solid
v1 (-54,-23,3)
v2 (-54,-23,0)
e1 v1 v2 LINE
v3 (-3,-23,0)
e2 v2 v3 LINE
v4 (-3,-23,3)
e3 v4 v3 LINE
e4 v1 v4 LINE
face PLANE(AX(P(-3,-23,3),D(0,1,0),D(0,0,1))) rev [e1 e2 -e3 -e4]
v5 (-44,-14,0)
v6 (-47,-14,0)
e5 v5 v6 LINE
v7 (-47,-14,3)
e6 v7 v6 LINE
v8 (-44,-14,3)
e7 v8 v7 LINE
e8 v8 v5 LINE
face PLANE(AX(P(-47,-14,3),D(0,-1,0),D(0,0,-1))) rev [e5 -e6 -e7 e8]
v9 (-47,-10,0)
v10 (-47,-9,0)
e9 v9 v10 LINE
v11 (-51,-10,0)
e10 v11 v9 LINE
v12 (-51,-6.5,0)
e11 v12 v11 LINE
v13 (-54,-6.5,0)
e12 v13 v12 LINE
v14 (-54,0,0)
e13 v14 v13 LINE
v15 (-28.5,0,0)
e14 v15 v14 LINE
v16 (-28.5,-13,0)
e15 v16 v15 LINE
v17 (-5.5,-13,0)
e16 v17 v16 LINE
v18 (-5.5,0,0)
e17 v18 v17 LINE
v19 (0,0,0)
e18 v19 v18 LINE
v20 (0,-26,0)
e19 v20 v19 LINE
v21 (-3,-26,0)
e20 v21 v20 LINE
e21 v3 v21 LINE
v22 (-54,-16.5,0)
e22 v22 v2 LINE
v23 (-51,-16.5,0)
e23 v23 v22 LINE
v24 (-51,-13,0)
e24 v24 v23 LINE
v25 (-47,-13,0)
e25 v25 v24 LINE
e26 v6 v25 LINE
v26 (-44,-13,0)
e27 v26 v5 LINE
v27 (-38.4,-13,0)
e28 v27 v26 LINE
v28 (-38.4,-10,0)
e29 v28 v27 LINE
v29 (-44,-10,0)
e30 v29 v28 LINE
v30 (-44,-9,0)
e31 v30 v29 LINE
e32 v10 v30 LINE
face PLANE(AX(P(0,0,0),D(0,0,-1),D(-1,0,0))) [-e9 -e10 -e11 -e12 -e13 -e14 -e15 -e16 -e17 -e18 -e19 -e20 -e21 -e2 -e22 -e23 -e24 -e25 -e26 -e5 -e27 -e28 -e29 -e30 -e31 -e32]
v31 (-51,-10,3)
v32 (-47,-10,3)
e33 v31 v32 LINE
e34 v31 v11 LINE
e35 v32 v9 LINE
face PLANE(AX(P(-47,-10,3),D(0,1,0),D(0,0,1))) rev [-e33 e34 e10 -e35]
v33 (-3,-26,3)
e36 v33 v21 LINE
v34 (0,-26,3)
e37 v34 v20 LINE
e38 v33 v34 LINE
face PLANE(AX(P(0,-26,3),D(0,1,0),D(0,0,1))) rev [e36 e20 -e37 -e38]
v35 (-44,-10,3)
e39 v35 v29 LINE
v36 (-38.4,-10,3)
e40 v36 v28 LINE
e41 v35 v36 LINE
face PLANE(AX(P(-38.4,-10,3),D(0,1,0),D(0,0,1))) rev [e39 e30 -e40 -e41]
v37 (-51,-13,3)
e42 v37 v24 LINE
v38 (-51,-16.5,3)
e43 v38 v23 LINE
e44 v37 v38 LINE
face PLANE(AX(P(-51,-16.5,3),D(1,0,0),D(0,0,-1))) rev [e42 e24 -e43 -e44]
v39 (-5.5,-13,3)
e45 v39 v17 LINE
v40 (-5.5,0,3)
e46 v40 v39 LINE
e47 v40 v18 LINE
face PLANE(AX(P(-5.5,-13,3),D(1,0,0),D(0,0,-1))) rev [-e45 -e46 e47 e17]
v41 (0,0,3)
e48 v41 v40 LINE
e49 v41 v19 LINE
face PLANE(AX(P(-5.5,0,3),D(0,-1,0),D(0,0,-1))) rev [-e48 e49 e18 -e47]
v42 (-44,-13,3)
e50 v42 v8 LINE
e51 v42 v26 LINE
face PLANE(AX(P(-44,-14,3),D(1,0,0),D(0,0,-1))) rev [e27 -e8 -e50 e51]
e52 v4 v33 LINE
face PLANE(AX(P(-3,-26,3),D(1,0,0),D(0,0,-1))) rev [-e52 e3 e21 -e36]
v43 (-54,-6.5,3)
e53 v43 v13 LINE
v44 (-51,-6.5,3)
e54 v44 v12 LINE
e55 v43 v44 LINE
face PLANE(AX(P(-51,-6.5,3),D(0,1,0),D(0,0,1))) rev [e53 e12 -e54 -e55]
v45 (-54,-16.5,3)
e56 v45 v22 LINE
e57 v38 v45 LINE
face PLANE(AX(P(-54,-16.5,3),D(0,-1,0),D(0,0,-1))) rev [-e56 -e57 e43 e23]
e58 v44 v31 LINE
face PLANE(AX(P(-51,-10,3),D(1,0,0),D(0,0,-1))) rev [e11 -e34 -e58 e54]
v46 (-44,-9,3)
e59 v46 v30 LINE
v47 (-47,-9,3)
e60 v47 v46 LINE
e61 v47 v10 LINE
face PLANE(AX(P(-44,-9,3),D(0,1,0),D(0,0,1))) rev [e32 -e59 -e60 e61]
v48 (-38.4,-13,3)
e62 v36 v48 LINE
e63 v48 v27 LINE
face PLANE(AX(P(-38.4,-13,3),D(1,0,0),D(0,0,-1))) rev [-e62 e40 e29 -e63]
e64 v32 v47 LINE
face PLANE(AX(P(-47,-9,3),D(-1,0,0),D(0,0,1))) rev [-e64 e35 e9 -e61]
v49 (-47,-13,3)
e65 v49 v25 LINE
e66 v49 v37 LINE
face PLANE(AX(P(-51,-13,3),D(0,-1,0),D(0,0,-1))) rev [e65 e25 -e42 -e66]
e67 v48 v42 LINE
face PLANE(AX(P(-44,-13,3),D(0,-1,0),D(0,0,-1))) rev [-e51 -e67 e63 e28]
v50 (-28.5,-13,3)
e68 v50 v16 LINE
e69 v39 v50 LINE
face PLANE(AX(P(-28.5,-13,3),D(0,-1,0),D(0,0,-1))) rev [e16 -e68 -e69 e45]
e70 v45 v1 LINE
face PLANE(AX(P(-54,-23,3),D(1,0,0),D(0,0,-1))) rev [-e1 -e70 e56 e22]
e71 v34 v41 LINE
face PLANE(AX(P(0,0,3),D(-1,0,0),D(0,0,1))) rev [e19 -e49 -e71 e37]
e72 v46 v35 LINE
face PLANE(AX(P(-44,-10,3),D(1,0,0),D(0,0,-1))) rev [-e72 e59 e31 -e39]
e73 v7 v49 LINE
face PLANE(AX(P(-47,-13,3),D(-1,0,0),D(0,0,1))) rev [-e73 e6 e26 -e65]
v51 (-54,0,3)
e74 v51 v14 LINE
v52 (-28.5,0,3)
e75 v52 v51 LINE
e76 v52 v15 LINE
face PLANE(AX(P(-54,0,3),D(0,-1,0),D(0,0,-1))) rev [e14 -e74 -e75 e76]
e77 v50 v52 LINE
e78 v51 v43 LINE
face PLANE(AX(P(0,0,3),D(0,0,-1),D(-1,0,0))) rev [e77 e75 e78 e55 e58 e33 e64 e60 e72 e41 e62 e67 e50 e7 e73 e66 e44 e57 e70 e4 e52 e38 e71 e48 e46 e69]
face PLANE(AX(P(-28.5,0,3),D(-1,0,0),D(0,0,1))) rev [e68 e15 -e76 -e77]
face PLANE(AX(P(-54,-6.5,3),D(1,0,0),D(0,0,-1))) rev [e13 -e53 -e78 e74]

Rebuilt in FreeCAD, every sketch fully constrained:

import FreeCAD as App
import Part
import Sketcher
Q = App.Units.Quantity

doc = App.newDocument("Part")
body = doc.addObject("PartDesign::Body", "Body")

# Sketch on XY plane
sketch1 = doc.addObject("Sketcher::SketchObject", "Sketch")
body.addObject(sketch1)
sketch1.AttachmentSupport = (doc.XY_Plane, [""])
sketch1.MapMode = "FlatFace"
sketch1.addGeometry(Part.LineSegment(App.Vector(0, -26, 0), App.Vector(0, 0, 0)), False)
sketch1.addGeometry(Part.LineSegment(App.Vector(0, 0, 0), App.Vector(-5.5, 0, 0)), False)
sketch1.addGeometry(Part.LineSegment(App.Vector(-5.5, 0, 0), App.Vector(-5.5, -13, 0)), False)
sketch1.addGeometry(Part.LineSegment(App.Vector(-5.5, -13, 0), App.Vector(-28.5, -13, 0)), False)
sketch1.addGeometry(Part.LineSegment(App.Vector(-28.5, -13, 0), App.Vector(-28.5, 0, 0)), False)
sketch1.addGeometry(Part.LineSegment(App.Vector(-28.5, 0, 0), App.Vector(-54, 0, 0)), False)
sketch1.addGeometry(Part.LineSegment(App.Vector(-54, 0, 0), App.Vector(-54, -6.5, 0)), False)
sketch1.addGeometry(Part.LineSegment(App.Vector(-54, -6.5, 0), App.Vector(-51, -6.5, 0)), False)
sketch1.addGeometry(Part.LineSegment(App.Vector(-51, -6.5, 0), App.Vector(-51, -10, 0)), False)
sketch1.addGeometry(Part.LineSegment(App.Vector(-51, -10, 0), App.Vector(-47, -10, 0)), False)
sketch1.addGeometry(Part.LineSegment(App.Vector(-47, -10, 0), App.Vector(-47, -9, 0)), False)
sketch1.addGeometry(Part.LineSegment(App.Vector(-47, -9, 0), App.Vector(-44, -9, 0)), False)
sketch1.addGeometry(Part.LineSegment(App.Vector(-44, -9, 0), App.Vector(-44, -10, 0)), False)
sketch1.addGeometry(Part.LineSegment(App.Vector(-44, -10, 0), App.Vector(-38.4, -10, 0)), False)
sketch1.addGeometry(Part.LineSegment(App.Vector(-38.4, -10, 0), App.Vector(-38.4, -13, 0)), False)
sketch1.addGeometry(Part.LineSegment(App.Vector(-38.4, -13, 0), App.Vector(-44, -13, 0)), False)
sketch1.addGeometry(Part.LineSegment(App.Vector(-44, -13, 0), App.Vector(-44, -14, 0)), False)
sketch1.addGeometry(Part.LineSegment(App.Vector(-44, -14, 0), App.Vector(-47, -14, 0)), False)
sketch1.addGeometry(Part.LineSegment(App.Vector(-47, -14, 0), App.Vector(-47, -13, 0)), False)
sketch1.addGeometry(Part.LineSegment(App.Vector(-47, -13, 0), App.Vector(-51, -13, 0)), False)
sketch1.addGeometry(Part.LineSegment(App.Vector(-51, -13, 0), App.Vector(-51, -16.5, 0)), False)
sketch1.addGeometry(Part.LineSegment(App.Vector(-51, -16.5, 0), App.Vector(-54, -16.5, 0)), False)
sketch1.addGeometry(Part.LineSegment(App.Vector(-54, -16.5, 0), App.Vector(-54, -23, 0)), False)
sketch1.addGeometry(Part.LineSegment(App.Vector(-54, -23, 0), App.Vector(-3, -23, 0)), False)
sketch1.addGeometry(Part.LineSegment(App.Vector(-3, -23, 0), App.Vector(-3, -26, 0)), False)
sketch1.addGeometry(Part.LineSegment(App.Vector(-3, -26, 0), App.Vector(0, -26, 0)), False)
sketch1.addConstraint(Sketcher.Constraint("Coincident", 0, 2, 1, 1))
sketch1.addConstraint(Sketcher.Constraint("Coincident", 1, 2, 2, 1))
sketch1.addConstraint(Sketcher.Constraint("Coincident", 2, 2, 3, 1))
sketch1.addConstraint(Sketcher.Constraint("Coincident", 3, 2, 4, 1))
sketch1.addConstraint(Sketcher.Constraint("Coincident", 4, 2, 5, 1))
sketch1.addConstraint(Sketcher.Constraint("Coincident", 5, 2, 6, 1))
sketch1.addConstraint(Sketcher.Constraint("Coincident", 6, 2, 7, 1))
sketch1.addConstraint(Sketcher.Constraint("Coincident", 7, 2, 8, 1))
sketch1.addConstraint(Sketcher.Constraint("Coincident", 8, 2, 9, 1))
sketch1.addConstraint(Sketcher.Constraint("Coincident", 9, 2, 10, 1))
sketch1.addConstraint(Sketcher.Constraint("Coincident", 10, 2, 11, 1))
sketch1.addConstraint(Sketcher.Constraint("Coincident", 11, 2, 12, 1))
sketch1.addConstraint(Sketcher.Constraint("Coincident", 12, 2, 13, 1))
sketch1.addConstraint(Sketcher.Constraint("Coincident", 13, 2, 14, 1))
sketch1.addConstraint(Sketcher.Constraint("Coincident", 14, 2, 15, 1))
sketch1.addConstraint(Sketcher.Constraint("Coincident", 15, 2, 16, 1))
sketch1.addConstraint(Sketcher.Constraint("Coincident", 16, 2, 17, 1))
sketch1.addConstraint(Sketcher.Constraint("Coincident", 17, 2, 18, 1))
sketch1.addConstraint(Sketcher.Constraint("Coincident", 18, 2, 19, 1))
sketch1.addConstraint(Sketcher.Constraint("Coincident", 19, 2, 20, 1))
sketch1.addConstraint(Sketcher.Constraint("Coincident", 20, 2, 21, 1))
sketch1.addConstraint(Sketcher.Constraint("Coincident", 21, 2, 22, 1))
sketch1.addConstraint(Sketcher.Constraint("Coincident", 22, 2, 23, 1))
sketch1.addConstraint(Sketcher.Constraint("Coincident", 23, 2, 24, 1))
sketch1.addConstraint(Sketcher.Constraint("Coincident", 24, 2, 25, 1))
sketch1.addConstraint(Sketcher.Constraint("Coincident", 25, 2, 0, 1))
sketch1.addConstraint(Sketcher.Constraint("Vertical", 0))
sketch1.addConstraint(Sketcher.Constraint("Horizontal", 1))
sketch1.addConstraint(Sketcher.Constraint("Vertical", 2))
sketch1.addConstraint(Sketcher.Constraint("Horizontal", 3))
sketch1.addConstraint(Sketcher.Constraint("Vertical", 4))
sketch1.addConstraint(Sketcher.Constraint("Horizontal", 5))
sketch1.addConstraint(Sketcher.Constraint("Vertical", 6))
sketch1.addConstraint(Sketcher.Constraint("Horizontal", 7))
sketch1.addConstraint(Sketcher.Constraint("Vertical", 8))
sketch1.addConstraint(Sketcher.Constraint("Horizontal", 9))
sketch1.addConstraint(Sketcher.Constraint("Vertical", 10))
sketch1.addConstraint(Sketcher.Constraint("Horizontal", 11))
sketch1.addConstraint(Sketcher.Constraint("Vertical", 12))
sketch1.addConstraint(Sketcher.Constraint("Horizontal", 13))
sketch1.addConstraint(Sketcher.Constraint("Vertical", 14))
sketch1.addConstraint(Sketcher.Constraint("Horizontal", 15))
sketch1.addConstraint(Sketcher.Constraint("Vertical", 16))
sketch1.addConstraint(Sketcher.Constraint("Horizontal", 17))
sketch1.addConstraint(Sketcher.Constraint("Vertical", 18))
sketch1.addConstraint(Sketcher.Constraint("Horizontal", 19))
sketch1.addConstraint(Sketcher.Constraint("Vertical", 20))
sketch1.addConstraint(Sketcher.Constraint("Horizontal", 21))
sketch1.addConstraint(Sketcher.Constraint("Vertical", 22))
sketch1.addConstraint(Sketcher.Constraint("Horizontal", 23))
sketch1.addConstraint(Sketcher.Constraint("Vertical", 24))
sketch1.addConstraint(Sketcher.Constraint("Horizontal", 25))
sketch1.addConstraint(Sketcher.Constraint("Coincident", 0, 2, -1, 1))
sketch1.addConstraint(Sketcher.Constraint("PointOnObject", 4, 2, -1))
sketch1.addConstraint(Sketcher.Constraint("Horizontal", 9, 2, 12, 2))
sketch1.addConstraint(Sketcher.Constraint("Horizontal", 3, 2, 14, 2))
sketch1.addConstraint(Sketcher.Constraint("Horizontal", 15, 2, 18, 2))
sketch1.addConstraint(Sketcher.Constraint("Vertical", 12, 2, 15, 2))
sketch1.addConstraint(Sketcher.Constraint("Vertical", 10, 2, 17, 2))
sketch1.addConstraint(Sketcher.Constraint("Vertical", 8, 2, 19, 2))
sketch1.addConstraint(Sketcher.Constraint("Vertical", 6, 2, 21, 2))
sketch1.addConstraint(Sketcher.Constraint("Equal", 7, 11))
sketch1.addConstraint(Sketcher.Constraint("Equal", 21, 25))
sketch1.addConstraint(Sketcher.Constraint("Equal", 25, 14))
sketch1.addConstraint(Sketcher.Constraint("Equal", 12, 16))
sketch1.addConstraint(Sketcher.Constraint("Equal", 8, 20))
sketch1.addConstraint(Sketcher.Constraint("Equal", 6, 22))
sketch1.addConstraint(Sketcher.Constraint("Equal", 14, 24))
sketch1.addConstraint(Sketcher.Constraint("DistanceX", 3, 2, 3, 1, Q("23 mm")))
sketch1.addConstraint(Sketcher.Constraint("DistanceX", 7, 1, 7, 2, Q("3 mm")))
sketch1.addConstraint(Sketcher.Constraint("DistanceX", 9, 1, 9, 2, Q("4 mm")))
sketch1.addConstraint(Sketcher.Constraint("DistanceX", 23, 1, 23, 2, Q("51 mm")))
sketch1.addConstraint(Sketcher.Constraint("DistanceY", 0, 1, 0, 2, Q("26 mm")))
sketch1.addConstraint(Sketcher.Constraint("DistanceY", 10, 1, 10, 2, Q("1 mm")))
sketch1.addConstraint(Sketcher.Constraint("DistanceX", 1, 2, 1, 1, Q("5.5 mm")))
sketch1.addConstraint(Sketcher.Constraint("DistanceX", 13, 1, 13, 2, Q("5.6 mm")))
sketch1.addConstraint(Sketcher.Constraint("DistanceY", 6, 2, 6, 1, Q("6.5 mm")))
pad1 = doc.addObject("PartDesign::Pad", "Pad")
body.addObject(pad1)
pad1.Profile = sketch1
pad1.Length = 3

doc.recompute()
